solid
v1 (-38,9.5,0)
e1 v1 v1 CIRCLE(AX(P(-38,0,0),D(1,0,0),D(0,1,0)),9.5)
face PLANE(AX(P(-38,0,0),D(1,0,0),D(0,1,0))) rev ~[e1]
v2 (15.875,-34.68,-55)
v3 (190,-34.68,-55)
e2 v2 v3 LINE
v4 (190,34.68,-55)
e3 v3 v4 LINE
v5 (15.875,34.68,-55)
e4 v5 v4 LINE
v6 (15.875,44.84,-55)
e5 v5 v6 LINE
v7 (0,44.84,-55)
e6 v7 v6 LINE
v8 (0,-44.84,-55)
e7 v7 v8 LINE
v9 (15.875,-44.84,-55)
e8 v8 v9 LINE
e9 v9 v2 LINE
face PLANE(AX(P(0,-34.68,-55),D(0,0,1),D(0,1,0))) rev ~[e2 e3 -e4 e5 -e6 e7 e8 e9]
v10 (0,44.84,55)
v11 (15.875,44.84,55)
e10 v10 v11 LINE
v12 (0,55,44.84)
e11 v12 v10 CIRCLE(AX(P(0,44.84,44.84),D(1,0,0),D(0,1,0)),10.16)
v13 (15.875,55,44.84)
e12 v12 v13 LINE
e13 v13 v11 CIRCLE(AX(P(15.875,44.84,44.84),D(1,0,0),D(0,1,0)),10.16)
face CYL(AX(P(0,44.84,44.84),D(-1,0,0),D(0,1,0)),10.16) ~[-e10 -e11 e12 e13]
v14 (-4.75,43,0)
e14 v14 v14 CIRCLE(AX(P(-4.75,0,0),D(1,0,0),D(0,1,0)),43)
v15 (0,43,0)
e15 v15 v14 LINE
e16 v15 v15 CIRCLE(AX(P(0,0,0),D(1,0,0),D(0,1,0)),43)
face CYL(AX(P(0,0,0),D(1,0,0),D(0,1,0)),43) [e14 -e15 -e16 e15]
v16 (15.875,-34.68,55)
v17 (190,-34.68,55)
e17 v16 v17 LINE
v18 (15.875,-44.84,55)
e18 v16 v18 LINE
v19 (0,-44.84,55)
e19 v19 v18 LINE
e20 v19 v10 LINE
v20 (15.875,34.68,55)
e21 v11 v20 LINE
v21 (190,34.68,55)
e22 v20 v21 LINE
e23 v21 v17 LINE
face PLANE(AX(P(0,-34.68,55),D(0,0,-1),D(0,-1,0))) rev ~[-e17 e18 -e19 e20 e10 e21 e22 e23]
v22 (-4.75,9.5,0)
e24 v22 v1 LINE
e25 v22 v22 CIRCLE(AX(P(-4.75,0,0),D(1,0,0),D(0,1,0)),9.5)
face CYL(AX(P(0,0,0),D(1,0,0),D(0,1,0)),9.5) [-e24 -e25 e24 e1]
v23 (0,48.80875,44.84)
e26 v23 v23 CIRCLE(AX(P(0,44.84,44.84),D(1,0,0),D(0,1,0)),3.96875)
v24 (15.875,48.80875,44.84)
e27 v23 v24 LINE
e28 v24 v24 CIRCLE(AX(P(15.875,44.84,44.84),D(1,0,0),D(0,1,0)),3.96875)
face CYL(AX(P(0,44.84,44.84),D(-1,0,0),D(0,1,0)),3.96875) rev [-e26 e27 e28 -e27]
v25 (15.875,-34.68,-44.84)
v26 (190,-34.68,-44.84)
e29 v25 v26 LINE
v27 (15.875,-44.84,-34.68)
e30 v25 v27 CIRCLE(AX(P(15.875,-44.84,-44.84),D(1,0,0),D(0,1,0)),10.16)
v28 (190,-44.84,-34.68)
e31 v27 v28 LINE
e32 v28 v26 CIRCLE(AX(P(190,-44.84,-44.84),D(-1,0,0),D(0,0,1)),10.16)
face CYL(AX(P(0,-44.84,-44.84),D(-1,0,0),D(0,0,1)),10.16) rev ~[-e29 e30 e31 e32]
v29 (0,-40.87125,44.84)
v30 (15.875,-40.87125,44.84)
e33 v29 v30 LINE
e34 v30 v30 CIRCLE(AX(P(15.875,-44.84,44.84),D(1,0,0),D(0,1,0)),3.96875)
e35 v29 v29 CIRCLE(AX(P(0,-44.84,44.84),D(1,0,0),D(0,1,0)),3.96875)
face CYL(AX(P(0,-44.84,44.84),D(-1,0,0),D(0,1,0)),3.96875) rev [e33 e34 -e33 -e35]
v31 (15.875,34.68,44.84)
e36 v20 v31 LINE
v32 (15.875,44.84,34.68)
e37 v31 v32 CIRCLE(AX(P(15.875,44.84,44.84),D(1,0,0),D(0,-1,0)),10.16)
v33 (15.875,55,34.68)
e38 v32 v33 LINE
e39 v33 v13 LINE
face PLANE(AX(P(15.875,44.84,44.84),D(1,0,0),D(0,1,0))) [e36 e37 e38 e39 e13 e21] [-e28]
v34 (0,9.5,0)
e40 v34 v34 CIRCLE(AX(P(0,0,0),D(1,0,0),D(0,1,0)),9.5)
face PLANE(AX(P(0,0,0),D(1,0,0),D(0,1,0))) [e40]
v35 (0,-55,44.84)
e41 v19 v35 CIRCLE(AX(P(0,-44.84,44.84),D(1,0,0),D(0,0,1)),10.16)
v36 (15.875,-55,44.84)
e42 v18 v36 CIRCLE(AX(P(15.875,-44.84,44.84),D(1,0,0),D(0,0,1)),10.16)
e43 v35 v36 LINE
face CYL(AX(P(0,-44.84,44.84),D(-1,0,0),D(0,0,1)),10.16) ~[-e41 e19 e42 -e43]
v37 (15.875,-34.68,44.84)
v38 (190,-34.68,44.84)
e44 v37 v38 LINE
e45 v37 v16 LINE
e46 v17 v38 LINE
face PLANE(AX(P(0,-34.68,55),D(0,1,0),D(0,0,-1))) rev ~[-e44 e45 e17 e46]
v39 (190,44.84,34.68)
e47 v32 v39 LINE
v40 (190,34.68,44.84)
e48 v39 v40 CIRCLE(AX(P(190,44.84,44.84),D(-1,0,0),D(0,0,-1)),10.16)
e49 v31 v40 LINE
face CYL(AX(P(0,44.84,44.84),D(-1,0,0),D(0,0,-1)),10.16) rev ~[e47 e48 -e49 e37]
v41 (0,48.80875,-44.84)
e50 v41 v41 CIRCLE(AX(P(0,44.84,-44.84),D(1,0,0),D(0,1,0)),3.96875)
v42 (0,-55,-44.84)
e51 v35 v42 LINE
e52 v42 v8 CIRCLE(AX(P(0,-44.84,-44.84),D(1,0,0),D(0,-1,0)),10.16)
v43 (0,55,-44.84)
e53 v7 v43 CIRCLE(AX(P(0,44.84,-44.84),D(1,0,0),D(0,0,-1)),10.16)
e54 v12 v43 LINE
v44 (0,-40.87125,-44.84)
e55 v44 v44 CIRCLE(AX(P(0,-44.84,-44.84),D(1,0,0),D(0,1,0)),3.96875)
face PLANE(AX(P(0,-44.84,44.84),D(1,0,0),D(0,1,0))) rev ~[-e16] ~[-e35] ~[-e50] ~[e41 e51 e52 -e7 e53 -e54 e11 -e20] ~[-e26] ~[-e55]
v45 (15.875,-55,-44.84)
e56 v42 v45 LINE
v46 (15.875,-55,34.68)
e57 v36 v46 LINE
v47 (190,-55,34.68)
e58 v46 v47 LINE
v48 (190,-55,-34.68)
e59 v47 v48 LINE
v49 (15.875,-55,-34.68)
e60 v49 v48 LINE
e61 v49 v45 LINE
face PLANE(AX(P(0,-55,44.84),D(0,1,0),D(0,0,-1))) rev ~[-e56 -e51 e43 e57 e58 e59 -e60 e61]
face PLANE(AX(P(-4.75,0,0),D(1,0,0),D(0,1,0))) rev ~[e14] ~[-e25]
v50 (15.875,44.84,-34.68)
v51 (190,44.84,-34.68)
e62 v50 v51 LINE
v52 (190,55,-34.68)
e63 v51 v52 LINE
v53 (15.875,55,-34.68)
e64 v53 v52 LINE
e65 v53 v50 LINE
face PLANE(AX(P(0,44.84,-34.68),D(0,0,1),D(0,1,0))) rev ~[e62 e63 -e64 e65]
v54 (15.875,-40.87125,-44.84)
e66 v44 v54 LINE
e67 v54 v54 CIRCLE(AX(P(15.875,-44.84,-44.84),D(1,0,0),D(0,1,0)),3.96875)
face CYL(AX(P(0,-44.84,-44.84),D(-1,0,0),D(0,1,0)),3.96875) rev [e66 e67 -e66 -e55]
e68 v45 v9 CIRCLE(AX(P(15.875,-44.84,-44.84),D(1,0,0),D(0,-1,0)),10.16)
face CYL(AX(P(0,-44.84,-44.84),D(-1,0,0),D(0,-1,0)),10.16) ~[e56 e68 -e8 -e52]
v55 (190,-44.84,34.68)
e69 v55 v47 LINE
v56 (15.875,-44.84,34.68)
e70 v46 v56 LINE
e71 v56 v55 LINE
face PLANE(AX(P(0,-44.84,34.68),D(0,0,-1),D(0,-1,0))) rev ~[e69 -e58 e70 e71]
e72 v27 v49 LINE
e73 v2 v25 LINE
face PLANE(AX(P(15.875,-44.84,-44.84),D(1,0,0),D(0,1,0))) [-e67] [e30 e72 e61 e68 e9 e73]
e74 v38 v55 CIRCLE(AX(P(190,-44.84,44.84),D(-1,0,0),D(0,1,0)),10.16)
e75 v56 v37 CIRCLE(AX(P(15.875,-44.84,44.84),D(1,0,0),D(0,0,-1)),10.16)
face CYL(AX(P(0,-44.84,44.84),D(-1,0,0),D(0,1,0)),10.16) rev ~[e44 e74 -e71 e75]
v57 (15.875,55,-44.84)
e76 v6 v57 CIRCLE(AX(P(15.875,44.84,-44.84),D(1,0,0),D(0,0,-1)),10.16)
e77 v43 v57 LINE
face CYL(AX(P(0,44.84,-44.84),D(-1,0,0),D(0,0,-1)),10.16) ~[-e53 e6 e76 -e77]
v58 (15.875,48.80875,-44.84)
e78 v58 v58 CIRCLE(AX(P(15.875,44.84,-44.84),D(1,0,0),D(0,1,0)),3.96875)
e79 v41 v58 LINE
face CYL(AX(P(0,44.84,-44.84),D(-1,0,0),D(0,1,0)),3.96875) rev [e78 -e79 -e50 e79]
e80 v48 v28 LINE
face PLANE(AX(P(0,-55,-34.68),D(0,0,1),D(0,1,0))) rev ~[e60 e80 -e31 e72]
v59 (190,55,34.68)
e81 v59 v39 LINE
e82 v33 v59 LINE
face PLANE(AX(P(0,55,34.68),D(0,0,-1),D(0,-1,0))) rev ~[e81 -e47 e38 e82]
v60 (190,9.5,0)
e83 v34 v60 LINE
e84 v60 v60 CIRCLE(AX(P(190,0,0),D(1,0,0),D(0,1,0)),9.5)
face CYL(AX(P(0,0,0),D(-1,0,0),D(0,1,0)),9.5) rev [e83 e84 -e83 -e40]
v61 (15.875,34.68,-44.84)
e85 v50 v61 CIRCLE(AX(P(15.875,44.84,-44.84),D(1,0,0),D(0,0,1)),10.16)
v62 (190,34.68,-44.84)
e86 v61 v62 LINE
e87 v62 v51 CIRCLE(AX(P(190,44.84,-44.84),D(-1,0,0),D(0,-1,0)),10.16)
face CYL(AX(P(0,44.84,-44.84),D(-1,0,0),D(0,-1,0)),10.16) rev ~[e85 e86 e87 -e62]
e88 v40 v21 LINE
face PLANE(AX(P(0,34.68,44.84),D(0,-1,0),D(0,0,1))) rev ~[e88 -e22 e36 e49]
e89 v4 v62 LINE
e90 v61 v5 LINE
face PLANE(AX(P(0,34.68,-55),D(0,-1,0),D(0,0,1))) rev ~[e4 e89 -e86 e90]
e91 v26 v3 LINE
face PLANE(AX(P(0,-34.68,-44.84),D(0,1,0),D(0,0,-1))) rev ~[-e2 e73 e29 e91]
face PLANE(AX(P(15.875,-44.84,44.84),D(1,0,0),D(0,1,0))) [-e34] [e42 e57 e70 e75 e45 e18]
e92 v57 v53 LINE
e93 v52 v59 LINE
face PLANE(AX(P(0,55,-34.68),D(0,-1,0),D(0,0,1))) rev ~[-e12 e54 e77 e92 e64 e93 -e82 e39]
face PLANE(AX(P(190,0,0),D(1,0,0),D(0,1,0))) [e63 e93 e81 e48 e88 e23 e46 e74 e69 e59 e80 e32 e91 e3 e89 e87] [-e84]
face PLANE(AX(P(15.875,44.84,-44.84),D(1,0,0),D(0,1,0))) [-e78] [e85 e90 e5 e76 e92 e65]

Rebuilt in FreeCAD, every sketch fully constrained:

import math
import FreeCAD as App
import Part
import Sketcher
from FreeCAD import Vector

doc = App.newDocument("Part")
body = doc.addObject("PartDesign::Body", "Body")

# Sketch on YZ plane
sketch1 = body.newObject("Sketcher::SketchObject", "Sketch")
sketch1.AttachmentSupport = (doc.getObject("YZ_Plane"), [""])
sketch1.MapMode = "FlatFace"
sketch1.addGeometry(Part.Circle(Vector(0, 0, 0), Vector(0, 0, 1), 10), False)
sketch1.addConstraint([
    Sketcher.Constraint("Coincident", 0, 3, -1, 1),
    Sketcher.Constraint("Diameter", 0, 19.0),
])
pad1 = body.newObject("PartDesign::Pad", "Pad")
pad1.Profile = sketch1
pad1.Length = 38
pad1.Reversed = True

# Sketch on YZ plane
sketch2 = body.newObject("Sketcher::SketchObject", "Sketch001")
sketch2.AttachmentSupport = (doc.getObject("YZ_Plane"), [""])
sketch2.MapMode = "FlatFace"
sketch2.addGeometry([
    Part.Circle(Vector(0, 0, 0), Vector(0, 0, 1), 43),
    Part.Circle(Vector(0, 0, 0), Vector(0, 0, 1), 10),
], False)
sketch2.addConstraint([
    Sketcher.Constraint("Coincident", 0, 3, -1, 1),
    Sketcher.Constraint("Coincident", 1, 3, -1, 1),
    Sketcher.Constraint("Diameter", 0, 86.0),
    Sketcher.Constraint("Diameter", 1, 19.0),
])
pad2 = body.newObject("PartDesign::Pad", "Pad001")
pad2.Profile = sketch2
pad2.Length = 4.75
pad2.Reversed = True

# Sketch on YZ plane
sketch3 = body.newObject("Sketcher::SketchObject", "Sketch002")
sketch3.AttachmentSupport = (doc.getObject("YZ_Plane"), [""])
sketch3.MapMode = "FlatFace"
sketch3.addGeometry([
    Part.LineSegment(Vector(-35, -55, 0), Vector(35, -55, 0)),  # 0
    Part.LineSegment(Vector(35, -55, 0), Vector(35, -45, 0)),  # 1
    Part.ArcOfCircle(Part.Circle(Vector(45, -45, 0), Vector(0, 0, 1), 10), math.radians(90), math.radians(180)),  # 2
    Part.LineSegment(Vector(45, -35, 0), Vector(55, -35, 0)),  # 3
    Part.LineSegment(Vector(55, -35, 0), Vector(55, 35, 0)),  # 4
    Part.LineSegment(Vector(55, 35, 0), Vector(45, 35, 0)),  # 5
    Part.ArcOfCircle(Part.Circle(Vector(45, 45, 0), Vector(0, 0, 1), 10), math.radians(180), math.radians(270)),  # 6
    Part.LineSegment(Vector(35, 45, 0), Vector(35, 55, 0)),  # 7
    Part.LineSegment(Vector(35, 55, 0), Vector(-35, 55, 0)),  # 8
    Part.LineSegment(Vector(-35, 55, 0), Vector(-35, 45, 0)),  # 9
    Part.ArcOfCircle(Part.Circle(Vector(-45, 45, 0), Vector(0, 0, 1), 10), math.radians(-90), math.radians(0)),  # 10
    Part.LineSegment(Vector(-45, 35, 0), Vector(-55, 35, 0)),  # 11
    Part.LineSegment(Vector(-55, 35, 0), Vector(-55, -35, 0)),  # 12
    Part.LineSegment(Vector(-55, -35, 0), Vector(-45, -35, 0)),  # 13
    Part.ArcOfCircle(Part.Circle(Vector(-45, -45, 0), Vector(0, 0, 1), 10), math.radians(0), math.radians(90)),  # 14
    Part.LineSegment(Vector(-35, -45, 0), Vector(-35, -55, 0)),  # 15
    Part.Circle(Vector(0, 0, 0), Vector(0, 0, 1), 10),  # 16
], False)
sketch3.addConstraint([
    Sketcher.Constraint("Coincident", 0, 2, 1, 1),
    Sketcher.Constraint("Tangent", 1, 2, 2, 2),
    Sketcher.Constraint("Tangent", 2, 1, 3, 1),
    Sketcher.Constraint("Coincident", 3, 2, 4, 1),
    Sketcher.Constraint("Coincident", 4, 2, 5, 1),
    Sketcher.Constraint("Tangent", 5, 2, 6, 2),
    Sketcher.Constraint("Tangent", 6, 1, 7, 1),
    Sketcher.Constraint("Coincident", 7, 2, 8, 1),
    Sketcher.Constraint("Coincident", 8, 2, 9, 1),
    Sketcher.Constraint("Tangent", 9, 2, 10, 2),
    Sketcher.Constraint("Tangent", 10, 1, 11, 1),
    Sketcher.Constraint("Coincident", 11, 2, 12, 1),
    Sketcher.Constraint("Coincident", 12, 2, 13, 1),
    Sketcher.Constraint("Tangent", 13, 2, 14, 2),
    Sketcher.Constraint("Tangent", 14, 1, 15, 1),
    Sketcher.Constraint("Coincident", 15, 2, 0, 1),
    Sketcher.Constraint("Horizontal", 0),
    Sketcher.Constraint("Vertical", 1),
    Sketcher.Constraint("Horizontal", 3),
    Sketcher.Constraint("Vertical", 4),
    Sketcher.Constraint("Horizontal", 5),
    Sketcher.Constraint("Vertical", 7),
    Sketcher.Constraint("Horizontal", 8),
    Sketcher.Constraint("Vertical", 9),
    Sketcher.Constraint("Horizontal", 11),
    Sketcher.Constraint("Vertical", 12),
    Sketcher.Constraint("Horizontal", 13),
    Sketcher.Constraint("Vertical", 15),
    Sketcher.Constraint("Coincident", 16, 3, -1, 1),
    Sketcher.Constraint("Equal", 2, 6),
    Sketcher.Constraint("Equal", 6, 10),
    Sketcher.Constraint("Equal", 10, 14),
    Sketcher.Constraint("Symmetric", 2, 3, 10, 3, -1, 1),
    Sketcher.Constraint("Symmetric", 6, 3, 14, 3, -1, 1),
    Sketcher.Constraint("Symmetric", 6, 3, 10, 3, -2),
    Sketcher.Constraint("Equal", 5, 11),
    Sketcher.Constraint("Equal", 13, 1),
    Sketcher.Constraint("Equal", 8, 4),
    Sketcher.Constraint("Equal", 1, 7),
    Sketcher.Constraint("Diameter", 16, 19.0),
    Sketcher.Constraint("Radius", 2, 10.16),
    Sketcher.Constraint("DistanceY", 0, 2, -1, 1, 55.0),
    Sketcher.Constraint("DistanceX", 0, 1, 0, 2, 69.36),
])
pad3 = body.newObject("PartDesign::Pad", "Pad002")
pad3.Profile = sketch3
pad3.Length = 190

# Sketch on YZ plane
sketch4 = body.newObject("Sketcher::SketchObject", "Sketch003")
sketch4.AttachmentSupport = (doc.getObject("YZ_Plane"), [""])
sketch4.MapMode = "FlatFace"
sketch4.addGeometry([
    Part.LineSegment(Vector(-55, 44.8, 0), Vector(-55, 34.7, 0)),  # 0
    Part.LineSegment(Vector(-55, 34.7, 0), Vector(-44.8, 34.7, 0)),  # 1
    Part.ArcOfCircle(Part.Circle(Vector(-44.8, 44.8, 0), Vector(0, 0, 1), 10.2), math.radians(-90), math.radians(0)),  # 2
    Part.LineSegment(Vector(-34.7, 44.8, 0), Vector(-34.7, 55, 0)),  # 3
    Part.LineSegment(Vector(-34.7, 55, 0), Vector(-44.8, 55, 0)),  # 4
    Part.ArcOfCircle(Part.Circle(Vector(-44.8, 44.8, 0), Vector(0, 0, 1), 10.2), math.radians(90), math.radians(180)),  # 5
    Part.Circle(Vector(-44.8, 44.8, 0), Vector(0, 0, 1), 4),  # 6
    Part.LineSegment(Vector(44.8, 34.7, 0), Vector(55, 34.7, 0)),  # 7
    Part.LineSegment(Vector(55, 34.7, 0), Vector(55, 44.8, 0)),  # 8
    Part.ArcOfCircle(Part.Circle(Vector(44.8, 44.8, 0), Vector(0, 0, 1), 10.2), math.radians(0), math.radians(90)),  # 9
    Part.LineSegment(Vector(44.8, 55, 0), Vector(34.7, 55, 0)),  # 10
    Part.LineSegment(Vector(34.7, 55, 0), Vector(34.7, 44.8, 0)),  # 11
    Part.ArcOfCircle(Part.Circle(Vector(44.8, 44.8, 0), Vector(0, 0, 1), 10.2), math.radians(180), math.radians(270)),  # 12
    Part.Circle(Vector(44.8, 44.8, 0), Vector(0, 0, 1), 4),  # 13
    Part.LineSegment(Vector(34.7, -55, 0), Vector(44.8, -55, 0)),  # 14
    Part.ArcOfCircle(Part.Circle(Vector(44.8, -44.8, 0), Vector(0, 0, 1), 10.2), math.radians(-90), math.radians(0)),  # 15
    Part.LineSegment(Vector(55, -44.8, 0), Vector(55, -34.7, 0)),  # 16
    Part.LineSegment(Vector(55, -34.7, 0), Vector(44.8, -34.7, 0)),  # 17
    Part.ArcOfCircle(Part.Circle(Vector(44.8, -44.8, 0), Vector(0, 0, 1), 10.2), math.radians(90), math.radians(180)),  # 18
    Part.LineSegment(Vector(34.7, -44.8, 0), Vector(34.7, -55, 0)),  # 19
    Part.Circle(Vector(44.8, -44.8, 0), Vector(0, 0, 1), 4),  # 20
    Part.LineSegment(Vector(-44.8, -55, 0), Vector(-34.7, -55, 0)),  # 21
    Part.LineSegment(Vector(-34.7, -55, 0), Vector(-34.7, -44.8, 0)),  # 22
    Part.ArcOfCircle(Part.Circle(Vector(-44.8, -44.8, 0), Vector(0, 0, 1), 10.2), math.radians(0), math.radians(90)),  # 23
    Part.LineSegment(Vector(-44.8, -34.7, 0), Vector(-55, -34.7, 0)),  # 24
    Part.LineSegment(Vector(-55, -34.7, 0), Vector(-55, -44.8, 0)),  # 25
    Part.ArcOfCircle(Part.Circle(Vector(-44.8, -44.8, 0), Vector(0, 0, 1), 10.2), math.radians(180), math.radians(270)),  # 26
    Part.Circle(Vector(-44.8, -44.8, 0), Vector(0, 0, 1), 4),  # 27
], False)
sketch4.addConstraint([
    Sketcher.Constraint("Coincident", 0, 2, 1, 1),
    Sketcher.Constraint("Tangent", 1, 2, 2, 1),
    Sketcher.Constraint("Tangent", 2, 2, 3, 1),
    Sketcher.Constraint("Coincident", 3, 2, 4, 1),
    Sketcher.Constraint("Tangent", 4, 2, 5, 1),
    Sketcher.Constraint("Tangent", 5, 2, 0, 1),
    Sketcher.Constraint("Coincident", 7, 2, 8, 1),
    Sketcher.Constraint("Tangent", 8, 2, 9, 1),
    Sketcher.Constraint("Tangent", 9, 2, 10, 1),
    Sketcher.Constraint("Coincident", 10, 2, 11, 1),
    Sketcher.Constraint("Tangent", 11, 2, 12, 1),
    Sketcher.Constraint("Tangent", 12, 2, 7, 1),
    Sketcher.Constraint("Tangent", 14, 2, 15, 1),
    Sketcher.Constraint("Tangent", 15, 2, 16, 1),
    Sketcher.Constraint("Coincident", 16, 2, 17, 1),
    Sketcher.Constraint("Tangent", 17, 2, 18, 1),
    Sketcher.Constraint("Tangent", 18, 2, 19, 1),
    Sketcher.Constraint("Coincident", 19, 2, 14, 1),
    Sketcher.Constraint("Coincident", 21, 2, 22, 1),
    Sketcher.Constraint("Tangent", 22, 2, 23, 1),
    Sketcher.Constraint("Tangent", 23, 2, 24, 1),
    Sketcher.Constraint("Coincident", 24, 2, 25, 1),
    Sketcher.Constraint("Tangent", 25, 2, 26, 1),
    Sketcher.Constraint("Tangent", 26, 2, 21, 1),
    Sketcher.Constraint("Vertical", 0),
    Sketcher.Constraint("Horizontal", 1),
    Sketcher.Constraint("Vertical", 3),
    Sketcher.Constraint("Horizontal", 4),
    Sketcher.Constraint("Horizontal", 7),
    Sketcher.Constraint("Vertical", 8),
    Sketcher.Constraint("Horizontal", 10),
    Sketcher.Constraint("Vertical", 11),
    Sketcher.Constraint("Horizontal", 14),
    Sketcher.Constraint("Vertical", 16),
    Sketcher.Constraint("Horizontal", 17),
    Sketcher.Constraint("Vertical", 19),
    Sketcher.Constraint("Horizontal", 21),
    Sketcher.Constraint("Vertical", 22),
    Sketcher.Constraint("Horizontal", 24),
    Sketcher.Constraint("Vertical", 25),
    Sketcher.Constraint("Coincident", 5, 3, 2, 3),
    Sketcher.Constraint("Coincident", 6, 3, 2, 3),
    Sketcher.Constraint("Coincident", 12, 3, 9, 3),
    Sketcher.Constraint("Coincident", 13, 3, 9, 3),
    Sketcher.Constraint("Coincident", 18, 3, 15, 3),
    Sketcher.Constraint("Coincident", 20, 3, 15, 3),
    Sketcher.Constraint("Coincident", 26, 3, 23, 3),
    Sketcher.Constraint("Coincident", 27, 3, 23, 3),
    Sketcher.Constraint("Equal", 2, 5),
    Sketcher.Constraint("Equal", 5, 9),
    Sketcher.Constraint("Equal", 9, 12),
    Sketcher.Constraint("Equal", 6, 13),
    Sketcher.Constraint("Equal", 12, 15),
    Sketcher.Constraint("Equal", 15, 18),
    Sketcher.Constraint("Equal", 13, 20),
    Sketcher.Constraint("Equal", 18, 23),
    Sketcher.Constraint("Equal", 23, 26),
    Sketcher.Constraint("Equal", 20, 27),
    Sketcher.Constraint("Symmetric", 2, 3, 15, 3, -1, 1),
    Sketcher.Constraint("Symmetric", 9, 3, 23, 3, -1, 1),
    Sketcher.Constraint("Symmetric", 2, 3, 9, 3, -2),
    Sketcher.Constraint("Radius", 2, 10.16),
    Sketcher.Constraint("DistanceX", 0, 2, -1, 1, 55.0),
    Sketcher.Constraint("DistanceY", -1, 1, 3, 2, 55.0),
    Sketcher.Constraint("Diameter", 6, 7.9375),
])
pad4 = body.newObject("PartDesign::Pad", "Pad003")
pad4.Profile = sketch4
pad4.Length = 15.875

doc.recompute()
